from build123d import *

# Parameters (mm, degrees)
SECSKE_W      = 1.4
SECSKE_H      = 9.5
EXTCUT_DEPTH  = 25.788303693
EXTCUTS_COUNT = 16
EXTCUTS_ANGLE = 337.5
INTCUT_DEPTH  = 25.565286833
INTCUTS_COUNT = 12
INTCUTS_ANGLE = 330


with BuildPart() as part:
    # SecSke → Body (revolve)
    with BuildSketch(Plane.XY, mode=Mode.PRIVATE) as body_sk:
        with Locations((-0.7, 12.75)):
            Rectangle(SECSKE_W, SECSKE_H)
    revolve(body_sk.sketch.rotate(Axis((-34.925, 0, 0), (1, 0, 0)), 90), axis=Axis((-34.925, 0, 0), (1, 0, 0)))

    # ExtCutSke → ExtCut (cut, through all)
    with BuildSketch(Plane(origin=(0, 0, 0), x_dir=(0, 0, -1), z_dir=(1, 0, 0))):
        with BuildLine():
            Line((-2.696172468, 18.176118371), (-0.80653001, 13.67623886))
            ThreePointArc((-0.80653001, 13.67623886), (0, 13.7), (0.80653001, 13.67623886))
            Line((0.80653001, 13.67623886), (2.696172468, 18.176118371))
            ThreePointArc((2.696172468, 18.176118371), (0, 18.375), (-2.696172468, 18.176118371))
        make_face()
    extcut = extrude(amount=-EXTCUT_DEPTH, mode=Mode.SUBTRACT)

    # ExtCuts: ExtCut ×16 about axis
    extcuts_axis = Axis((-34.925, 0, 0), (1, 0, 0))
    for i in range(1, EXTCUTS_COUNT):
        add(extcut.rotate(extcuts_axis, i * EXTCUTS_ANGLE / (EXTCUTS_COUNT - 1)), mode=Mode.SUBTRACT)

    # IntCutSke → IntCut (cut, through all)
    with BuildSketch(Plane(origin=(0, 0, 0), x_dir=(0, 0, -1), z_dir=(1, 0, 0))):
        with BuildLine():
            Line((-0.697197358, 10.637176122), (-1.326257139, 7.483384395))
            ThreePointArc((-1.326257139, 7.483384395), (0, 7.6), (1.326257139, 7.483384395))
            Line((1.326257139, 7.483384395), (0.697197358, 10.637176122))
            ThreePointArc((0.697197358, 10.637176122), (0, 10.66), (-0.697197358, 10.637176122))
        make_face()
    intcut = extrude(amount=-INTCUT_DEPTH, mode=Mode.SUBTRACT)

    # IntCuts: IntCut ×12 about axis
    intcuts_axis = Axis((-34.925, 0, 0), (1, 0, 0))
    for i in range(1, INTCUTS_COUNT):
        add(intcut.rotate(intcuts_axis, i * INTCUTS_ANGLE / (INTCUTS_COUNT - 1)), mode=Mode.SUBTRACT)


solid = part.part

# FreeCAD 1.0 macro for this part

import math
import FreeCAD as App
import Part
import Sketcher
from FreeCAD import Vector
Q = App.Units.Quantity


def add_polygon(sketch, points):
    """Adds a closed chain of lines whose ends are joined by coincident constraints."""
    first, n = sketch.GeometryCount, len(points)
    for a, b in zip(points, points[1:] + points[:1]):
        sketch.addGeometry(Part.LineSegment(App.Vector(*a, 0), App.Vector(*b, 0)), False)
    for i in range(n):
        sketch.addConstraint(Sketcher.Constraint("Coincident", first + i, 2, first + (i + 1) % n, 1))

doc = App.newDocument("Part")
body = doc.addObject("PartDesign::Body", "Body")

# Sketch on XY plane
sketch1 = body.newObject("Sketcher::SketchObject", "Sketch")
sketch1.AttachmentSupport = (doc.getObject("XY_Plane"), [""])
sketch1.MapMode = "FlatFace"
add_polygon(sketch1, [(-1.4, 17.5), (-1.4, 8), (0, 8), (0, 17.5)])  # lines 0-3
sketch1.addConstraint(Sketcher.Constraint("Vertical", 0))
sketch1.addConstraint(Sketcher.Constraint("Horizontal", 1))
sketch1.addConstraint(Sketcher.Constraint("Vertical", 2))
sketch1.addConstraint(Sketcher.Constraint("Horizontal", 3))
sketch1.addConstraint(Sketcher.Constraint("PointOnObject", 1, 2, -2))
sketch1.addConstraint(Sketcher.Constraint("DistanceX", 1, 1, 1, 2, Q("1.4 mm")))
sketch1.addConstraint(Sketcher.Constraint("DistanceY", 0, 2, 0, 1, Q("9.5 mm")))
sketch1.addConstraint(Sketcher.Constraint("DistanceY", -1, 1, 0, 2, Q("8 mm")))
revolution = body.newObject("PartDesign::Revolution", "Revolution")
revolution.Profile = sketch1
revolution.ReferenceAxis = (sketch1, ["H_Axis"])
revolution.Angle = 360

# Sketch on YZ plane
sketch2 = body.newObject("Sketcher::SketchObject", "Sketch001")
sketch2.AttachmentSupport = (doc.getObject("YZ_Plane"), [""])
sketch2.MapMode = "FlatFace"
sketch2.addGeometry(Part.LineSegment(Vector(18.2, 2.7, 0), Vector(13.7, 0.8, 0)), False)
sketch2.addGeometry(Part.ArcOfCircle(Part.Circle(Vector(0, 0, 0), Vector(0, 0, 1), 13.7), math.radians(-3.37), math.radians(3.37)), False)
sketch2.addGeometry(Part.LineSegment(Vector(13.7, -0.8, 0), Vector(18.2, -2.7, 0)), False)
sketch2.addGeometry(Part.ArcOfCircle(Part.Circle(Vector(0, 0, 0), Vector(0, 0, 1), 18.4), math.radians(-8.44), math.radians(8.44)), False)
sketch2.addConstraint(Sketcher.Constraint("Coincident", 0, 2, 1, 2))
sketch2.addConstraint(Sketcher.Constraint("Coincident", 1, 1, 2, 1))
sketch2.addConstraint(Sketcher.Constraint("Coincident", 2, 2, 3, 1))
sketch2.addConstraint(Sketcher.Constraint("Coincident", 3, 2, 0, 1))
sketch2.addConstraint(Sketcher.Constraint("Coincident", 1, 3, -1, 1))
sketch2.addConstraint(Sketcher.Constraint("Coincident", 3, 3, -1, 1))
sketch2.addConstraint(Sketcher.Constraint("Vertical", 0, 2, 1, 1))
sketch2.addConstraint(Sketcher.Constraint("Vertical", 2, 2, 3, 2))
sketch2.addConstraint(Sketcher.Constraint("Radius", 1, Q("13.7 mm")))
sketch2.addConstraint(Sketcher.Constraint("Radius", 3, Q("18.375 mm")))
sketch2.addConstraint(Sketcher.Constraint("Distance", 0, Q("4.880539 mm")))
sketch2.addConstraint(Sketcher.Constraint("DistanceX", -1, 1, 0, 2, Q("13.676239 mm")))
pocket1 = body.newObject("PartDesign::Pocket", "Pocket")
pocket1.Profile = sketch2
pocket1.Type = "ThroughAll"
doc.recompute()

polarpattern = body.newObject("PartDesign::PolarPattern", "PolarPattern")
polarpattern.Originals = [pocket1]
polarpattern.Axis = (doc.getObject("X_Axis"), [""])
polarpattern.Angle = 360
polarpattern.Occurrences = 16
body.Tip = polarpattern

# Sketch on YZ plane
sketch3 = body.newObject("Sketcher::SketchObject", "Sketch002")
sketch3.AttachmentSupport = (doc.getObject("YZ_Plane"), [""])
sketch3.MapMode = "FlatFace"
sketch3.addGeometry(Part.LineSegment(Vector(10.6, 0.7, 0), Vector(7.5, 1.3, 0)), False)
sketch3.addGeometry(Part.ArcOfCircle(Part.Circle(Vector(0, 0, 0), Vector(0, 0, 1), 7.6), math.radians(-10), math.radians(10)), False)
sketch3.addGeometry(Part.LineSegment(Vector(7.5, -1.3, 0), Vector(10.6, -0.7, 0)), False)
sketch3.addGeometry(Part.ArcOfCircle(Part.Circle(Vector(0, 0, 0), Vector(0, 0, 1), 10.7), math.radians(-3.75), math.radians(3.75)), False)
sketch3.addConstraint(Sketcher.Constraint("Coincident", 0, 2, 1, 2))
sketch3.addConstraint(Sketcher.Constraint("Coincident", 1, 1, 2, 1))
sketch3.addConstraint(Sketcher.Constraint("Coincident", 2, 2, 3, 1))
sketch3.addConstraint(Sketcher.Constraint("Coincident", 3, 2, 0, 1))
sketch3.addConstraint(Sketcher.Constraint("Coincident", 1, 3, -1, 1))
sketch3.addConstraint(Sketcher.Constraint("Coincident", 3, 3, -1, 1))
sketch3.addConstraint(Sketcher.Constraint("Vertical", 0, 2, 1, 1))
sketch3.addConstraint(Sketcher.Constraint("Vertical", 2, 2, 3, 2))
sketch3.addConstraint(Sketcher.Constraint("Radius", 1, Q("7.6 mm")))
sketch3.addConstraint(Sketcher.Constraint("Radius", 3, Q("10.66 mm")))
sketch3.addConstraint(Sketcher.Constraint("DistanceX", 1, 1, 2, 2, Q("3.153792 mm")))
sketch3.addConstraint(Sketcher.Constraint("DistanceY", 1, 1, 2, 2, Q("0.62906 mm")))
pocket2 = body.newObject("PartDesign::Pocket", "Pocket001")
pocket2.Profile = sketch3
pocket2.Type = "ThroughAll"
doc.recompute()

polarpattern2 = body.newObject("PartDesign::PolarPattern", "PolarPattern001")
polarpattern2.Originals = [pocket2]
polarpattern2.Axis = (doc.getObject("X_Axis"), [""])
polarpattern2.Angle = 360
polarpattern2.Occurrences = 12
body.Tip = polarpattern2

doc.recompute()
